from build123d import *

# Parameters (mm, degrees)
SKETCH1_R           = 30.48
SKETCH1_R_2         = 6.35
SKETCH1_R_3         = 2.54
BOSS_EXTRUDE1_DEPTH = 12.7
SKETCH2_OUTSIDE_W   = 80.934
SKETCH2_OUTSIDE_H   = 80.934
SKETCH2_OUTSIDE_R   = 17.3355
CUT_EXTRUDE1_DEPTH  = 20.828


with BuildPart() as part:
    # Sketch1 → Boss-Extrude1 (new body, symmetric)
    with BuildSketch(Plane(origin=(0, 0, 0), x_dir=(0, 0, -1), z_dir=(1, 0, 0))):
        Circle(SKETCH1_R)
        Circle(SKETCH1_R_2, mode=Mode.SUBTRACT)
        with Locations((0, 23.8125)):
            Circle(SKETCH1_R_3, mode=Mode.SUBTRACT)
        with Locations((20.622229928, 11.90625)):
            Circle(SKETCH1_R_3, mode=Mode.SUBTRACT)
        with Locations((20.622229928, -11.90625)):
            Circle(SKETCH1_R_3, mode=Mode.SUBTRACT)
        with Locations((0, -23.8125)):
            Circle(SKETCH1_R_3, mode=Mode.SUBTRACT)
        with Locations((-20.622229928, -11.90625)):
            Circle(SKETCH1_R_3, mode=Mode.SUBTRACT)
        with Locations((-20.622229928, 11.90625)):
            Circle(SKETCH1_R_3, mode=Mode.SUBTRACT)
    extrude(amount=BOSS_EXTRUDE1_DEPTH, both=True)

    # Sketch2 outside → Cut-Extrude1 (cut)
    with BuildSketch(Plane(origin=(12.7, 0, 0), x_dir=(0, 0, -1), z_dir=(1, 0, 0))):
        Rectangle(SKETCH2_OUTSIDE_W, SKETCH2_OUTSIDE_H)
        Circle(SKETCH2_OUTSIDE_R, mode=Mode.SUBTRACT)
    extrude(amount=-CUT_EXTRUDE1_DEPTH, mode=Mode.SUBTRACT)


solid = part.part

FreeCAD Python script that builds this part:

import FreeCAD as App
import Part
import Sketcher
Q = App.Units.Quantity


def add_polygon(sketch, points):
    """Adds a closed chain of lines whose ends are joined by coincident constraints."""
    first, n = sketch.GeometryCount, len(points)
    for a, b in zip(points, points[1:] + points[:1]):
        sketch.addGeometry(Part.LineSegment(App.Vector(*a, 0), App.Vector(*b, 0)), False)
    for i in range(n):
        sketch.addConstraint(Sketcher.Constraint("Coincident", first + i, 2, first + (i + 1) % n, 1))

doc = App.newDocument("Part")
body = doc.addObject("PartDesign::Body", "Body")

sketch1 = doc.addObject("Sketcher::SketchObject", "Sketch")
body.addObject(sketch1)
sketch1.AttachmentSupport = (doc.YZ_Plane, [""])
sketch1.MapMode = "FlatFace"
sketch1.addGeometry([
    Part.Circle(App.Vector(0, 0, 0), App.Vector(0, 0, 1), 30.5),
    Part.Circle(App.Vector(-11.9, 20.6, 0), App.Vector(0, 0, 1), 2.5),
    Part.Circle(App.Vector(-23.8, 0, 0), App.Vector(0, 0, 1), 2.5),
    Part.Circle(App.Vector(-11.9, -20.6, 0), App.Vector(0, 0, 1), 2.5),
    Part.Circle(App.Vector(11.9, 20.6, 0), App.Vector(0, 0, 1), 2.5),
    Part.Circle(App.Vector(0, 0, 0), App.Vector(0, 0, 1), 6.3),
    Part.Circle(App.Vector(11.9, -20.6, 0), App.Vector(0, 0, 1), 2.5),
    Part.Circle(App.Vector(23.8, 0, 0), App.Vector(0, 0, 1), 2.5),
], False)
sketch1.addConstraint([
    Sketcher.Constraint("Coincident", 0, 3, -1, 1),
    Sketcher.Constraint("Coincident", 5, 3, -1, 1),
    Sketcher.Constraint("Equal", 1, 2),
    Sketcher.Constraint("Equal", 2, 3),
    Sketcher.Constraint("Equal", 3, 4),
    Sketcher.Constraint("Equal", 4, 6),
    Sketcher.Constraint("Equal", 6, 7),
    Sketcher.Constraint("Symmetric", 3, 3, 4, 3, -1, 1),
    Sketcher.Constraint("Symmetric", 1, 3, 6, 3, -1, 1),
    Sketcher.Constraint("Symmetric", 2, 3, 7, 3, -1, 1),
    Sketcher.Constraint("Symmetric", 1, 3, 4, 3, -2),
    Sketcher.Constraint("PointOnObject", 2, 3, -1),
    Sketcher.Constraint("Diameter", 0, Q("2.4 in")),
    Sketcher.Constraint("Diameter", 1, Q("0.2 in")),
    Sketcher.Constraint("Diameter", 5, Q("0.5 in")),
    Sketcher.Constraint("DistanceX", 1, 3, -1, 1, Q("0.46875 in")),
    Sketcher.Constraint("DistanceX", 2, 3, -1, 1, Q("0.9375 in")),
    Sketcher.Constraint("DistanceY", -1, 1, 1, 3, Q("20.62223 mm")),
])
pad1 = doc.addObject("PartDesign::Pad", "Pad")
body.addObject(pad1)
pad1.Profile = sketch1
pad1.Length = Q("1 in")
pad1.Midplane = True

sketch2 = doc.addObject("Sketcher::SketchObject", "Sketch001")
body.addObject(sketch2)
sketch2.AttachmentSupport = (doc.YZ_Plane, [""])
sketch2.MapMode = "FlatFace"
sketch2.AttachmentOffset = App.Placement(App.Vector(0, 0, 0.5 * 25.4), App.Rotation())
add_polygon(sketch2, [(40, 40), (-40, 40), (-40, -40), (40, -40)])
sketch2.addGeometry(Part.Circle(App.Vector(0, 0, 0), App.Vector(0, 0, 1), 17), False)
sketch2.addConstraint([
    Sketcher.Constraint("Horizontal", 0),
    Sketcher.Constraint("Vertical", 1),
    Sketcher.Constraint("Horizontal", 2),
    Sketcher.Constraint("Vertical", 3),
    Sketcher.Constraint("Coincident", 4, 3, -1, 1),
    Sketcher.Constraint("Symmetric", 0, 2, 2, 2, -1, 1),
    Sketcher.Constraint("Equal", 2, 1),
    Sketcher.Constraint("Diameter", 4, Q("1.365 in")),
    Sketcher.Constraint("DistanceX", 0, 2, 0, 1, Q("80.934 mm")),
])
pocket1 = doc.addObject("PartDesign::Pocket", "Pocket")
body.addObject(pocket1)
pocket1.Profile = sketch2
pocket1.Length = Q("0.82 in")

doc.recompute()
